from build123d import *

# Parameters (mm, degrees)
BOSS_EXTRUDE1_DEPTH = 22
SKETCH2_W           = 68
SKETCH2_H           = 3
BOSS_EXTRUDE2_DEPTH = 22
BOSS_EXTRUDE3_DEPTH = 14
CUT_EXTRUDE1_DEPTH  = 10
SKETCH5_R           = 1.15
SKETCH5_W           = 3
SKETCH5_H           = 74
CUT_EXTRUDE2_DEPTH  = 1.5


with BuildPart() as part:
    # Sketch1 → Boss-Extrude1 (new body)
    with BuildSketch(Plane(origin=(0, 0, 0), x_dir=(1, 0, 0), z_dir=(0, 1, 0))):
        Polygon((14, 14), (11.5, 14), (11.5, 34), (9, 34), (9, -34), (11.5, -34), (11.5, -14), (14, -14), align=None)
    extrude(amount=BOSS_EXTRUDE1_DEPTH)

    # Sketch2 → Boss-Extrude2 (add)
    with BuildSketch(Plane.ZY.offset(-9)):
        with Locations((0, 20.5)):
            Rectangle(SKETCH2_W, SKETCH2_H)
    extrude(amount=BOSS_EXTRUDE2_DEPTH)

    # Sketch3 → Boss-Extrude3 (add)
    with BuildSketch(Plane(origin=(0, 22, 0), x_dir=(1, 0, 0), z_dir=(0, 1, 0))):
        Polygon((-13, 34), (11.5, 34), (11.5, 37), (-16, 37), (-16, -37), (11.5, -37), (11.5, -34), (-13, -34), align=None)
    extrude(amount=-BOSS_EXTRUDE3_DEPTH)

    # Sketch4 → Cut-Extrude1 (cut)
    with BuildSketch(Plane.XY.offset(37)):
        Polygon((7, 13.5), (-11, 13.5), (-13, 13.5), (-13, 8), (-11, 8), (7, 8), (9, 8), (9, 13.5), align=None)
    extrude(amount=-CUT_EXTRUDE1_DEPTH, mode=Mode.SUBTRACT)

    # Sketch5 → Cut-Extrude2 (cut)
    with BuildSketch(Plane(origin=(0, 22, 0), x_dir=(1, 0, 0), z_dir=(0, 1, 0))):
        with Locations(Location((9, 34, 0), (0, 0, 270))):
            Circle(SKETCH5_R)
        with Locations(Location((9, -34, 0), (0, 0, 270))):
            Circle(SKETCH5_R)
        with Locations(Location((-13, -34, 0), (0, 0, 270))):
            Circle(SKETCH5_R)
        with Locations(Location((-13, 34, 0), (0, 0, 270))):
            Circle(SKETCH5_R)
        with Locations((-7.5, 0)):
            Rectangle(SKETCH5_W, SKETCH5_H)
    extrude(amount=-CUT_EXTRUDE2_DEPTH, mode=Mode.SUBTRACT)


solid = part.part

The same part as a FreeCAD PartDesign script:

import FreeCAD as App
import Part
import Sketcher

V = App.Vector
Q = App.Units.Quantity


def add_polygon(sketch, points):
    """Adds a closed chain of lines whose ends are joined by coincident constraints."""
    first, n = sketch.GeometryCount, len(points)
    for a, b in zip(points, points[1:] + points[:1]):
        sketch.addGeometry(Part.LineSegment(App.Vector(*a, 0), App.Vector(*b, 0)), False)
    for i in range(n):
        sketch.addConstraint(Sketcher.Constraint("Coincident", first + i, 2, first + (i + 1) % n, 1))

doc = App.newDocument("Part")
body = doc.addObject("PartDesign::Body", "Body")

sketch1 = body.newObject("Sketcher::SketchObject", "Sketch")
sketch1.AttachmentSupport = (doc.getObject("XZ_Plane"), [""])
sketch1.MapMode = "FlatFace"
add_polygon(sketch1, [(14, -14), (11.5, -14), (11.5, -34), (9, -34), (9, 34), (11.5, 34), (11.5, 14), (14, 14)])
sketch1.addConstraint([
    Sketcher.Constraint("Horizontal", 0),
    Sketcher.Constraint("Vertical", 1),
    Sketcher.Constraint("Horizontal", 2),
    Sketcher.Constraint("Vertical", 3),
    Sketcher.Constraint("Horizontal", 4),
    Sketcher.Constraint("Vertical", 5),
    Sketcher.Constraint("Horizontal", 6),
    Sketcher.Constraint("Vertical", 7),
    Sketcher.Constraint("Symmetric", 1, 2, 4, 2, -1),
    Sketcher.Constraint("Equal", 0, 2),
    Sketcher.Constraint("Equal", 1, 5),
    Sketcher.Constraint("DistanceY", 1, 2, 1, 1, Q("20 mm")),
    Sketcher.Constraint("DistanceY", 3, 1, 3, 2, Q("68 mm")),
    Sketcher.Constraint("DistanceX", 0, 2, 0, 1, Q("2.5 mm")),
    Sketcher.Constraint("DistanceX", -1, 1, 2, 2, Q("9 mm")),
])
pad1 = body.newObject("PartDesign::Pad", "Pad")
pad1.Profile = sketch1
pad1.Length = 22
pad1.Reversed = True

sketch2 = body.newObject("Sketcher::SketchObject", "Sketch001")
sketch2.AttachmentSupport = (doc.getObject("YZ_Plane"), [""])
sketch2.MapMode = "FlatFace"
sketch2.AttachmentOffset = App.Placement(V(0, 0, 9), App.Rotation())
add_polygon(sketch2, [(22, -34), (19, -34), (19, 34), (22, 34)])
sketch2.addConstraint([
    Sketcher.Constraint("Horizontal", 0),
    Sketcher.Constraint("Vertical", 1),
    Sketcher.Constraint("Horizontal", 2),
    Sketcher.Constraint("Vertical", 3),
    Sketcher.Constraint("DistanceX", 0, 2, 0, 1, Q("3 mm")),
    Sketcher.Constraint("DistanceY", 1, 1, 1, 2, Q("68 mm")),
    Sketcher.Constraint("DistanceX", -1, 1, 0, 2, Q("19 mm")),
    Sketcher.Constraint("DistanceY", 0, 2, -1, 1, Q("34 mm")),
])
pad2 = body.newObject("PartDesign::Pad", "Pad001")
pad2.Profile = sketch2
pad2.Length = 22
pad2.Reversed = True

sketch3 = body.newObject("Sketcher::SketchObject", "Sketch002")
sketch3.AttachmentSupport = (doc.getObject("XZ_Plane"), [""])
sketch3.MapMode = "FlatFace"
sketch3.AttachmentOffset = App.Placement(V(0, 0, -22), App.Rotation())
add_polygon(sketch3, [(-13, -34), (11.5, -34), (11.5, -37), (-16, -37), (-16, 37), (11.5, 37), (11.5, 34), (-13, 34)])
sketch3.addConstraint([
    Sketcher.Constraint("Horizontal", 0),
    Sketcher.Constraint("Vertical", 1),
    Sketcher.Constraint("Horizontal", 2),
    Sketcher.Constraint("Vertical", 3),
    Sketcher.Constraint("Horizontal", 4),
    Sketcher.Constraint("Vertical", 5),
    Sketcher.Constraint("Horizontal", 6),
    Sketcher.Constraint("Vertical", 7),
    Sketcher.Constraint("Symmetric", 1, 2, 4, 2, -1),
    Sketcher.Constraint("Equal", 1, 5),
    Sketcher.Constraint("DistanceY", 1, 2, 1, 1, Q("3 mm")),
    Sketcher.Constraint("DistanceY", 3, 1, 3, 2, Q("74 mm")),
    Sketcher.Constraint("DistanceX", 0, 1, 0, 2, Q("24.5 mm")),
    Sketcher.Constraint("DistanceX", 2, 2, 2, 1, Q("27.5 mm")),
    Sketcher.Constraint("DistanceX", 2, 2, -1, 1, Q("16 mm")),
])
pad3 = body.newObject("PartDesign::Pad", "Pad002")
pad3.Profile = sketch3
pad3.Length = 14

sketch4 = body.newObject("Sketcher::SketchObject", "Sketch003")
sketch4.AttachmentSupport = (doc.getObject("XY_Plane"), [""])
sketch4.MapMode = "FlatFace"
sketch4.AttachmentOffset = App.Placement(V(0, 0, 37), App.Rotation())
add_polygon(sketch4, [(-13, 13.5), (-13, 8), (9, 8), (9, 13.5)])
sketch4.addConstraint([
    Sketcher.Constraint("Vertical", 0),
    Sketcher.Constraint("Horizontal", 1),
    Sketcher.Constraint("Vertical", 2),
    Sketcher.Constraint("Horizontal", 3),
    Sketcher.Constraint("DistanceX", 1, 1, 1, 2, Q("22 mm")),
    Sketcher.Constraint("DistanceY", 0, 2, 0, 1, Q("5.5 mm")),
    Sketcher.Constraint("DistanceX", 0, 2, -1, 1, Q("13 mm")),
    Sketcher.Constraint("DistanceY", -1, 1, 0, 2, Q("8 mm")),
])
pocket1 = body.newObject("PartDesign::Pocket", "Pocket")
pocket1.Profile = sketch4
pocket1.Length = 10

sketch5 = body.newObject("Sketcher::SketchObject", "Sketch004")
sketch5.AttachmentSupport = (doc.getObject("XZ_Plane"), [""])
sketch5.MapMode = "FlatFace"
sketch5.AttachmentOffset = App.Placement(V(0, 0, -22), App.Rotation())
sketch5.addGeometry(Part.Circle(V(9, -34, 0), V(0, 0, 1), 1.15), False)
sketch5.addGeometry(Part.Circle(V(9, 34, 0), V(0, 0, 1), 1.15), False)
sketch5.addGeometry(Part.Circle(V(-13, 34, 0), V(0, 0, 1), 1.15), False)
sketch5.addGeometry(Part.Circle(V(-13, -34, 0), V(0, 0, 1), 1.15), False)
add_polygon(sketch5, [(-9, -37), (-9, 37), (-6, 37), (-6, -37)])
sketch5.addConstraint([
    Sketcher.Constraint("Vertical", 4),
    Sketcher.Constraint("Horizontal", 5),
    Sketcher.Constraint("Vertical", 6),
    Sketcher.Constraint("Horizontal", 7),
    Sketcher.Constraint("Equal", 0, 1),
    Sketcher.Constraint("Equal", 1, 2),
    Sketcher.Constraint("Equal", 2, 3),
    Sketcher.Constraint("Symmetric", 0, 3, 1, 3, -1),
    Sketcher.Constraint("Symmetric", 2, 3, 3, 3, -1),
    Sketcher.Constraint("Horizontal", 1, 3, 2, 3),
    Sketcher.Constraint("Diameter", 0, Q("2.3 mm")),
    Sketcher.Constraint("DistanceX", 5, 1, 5, 2, Q("3 mm")),
    Sketcher.Constraint("DistanceY", 4, 1, 4, 2, Q("74 mm")),
    Sketcher.Constraint("DistanceX", -1, 1, 0, 3, Q("9 mm")),
    Sketcher.Constraint("DistanceY", 0, 3, -1, 1, Q("34 mm")),
    Sketcher.Constraint("DistanceX", 2, 3, -1, 1, Q("13 mm")),
    Sketcher.Constraint("DistanceX", 4, 2, -1, 1, Q("9 mm")),
    Sketcher.Constraint("DistanceY", -1, 1, 4, 2, Q("37 mm")),
])
pocket2 = body.newObject("PartDesign::Pocket", "Pocket001")
pocket2.Profile = sketch5
pocket2.Length = 1.5
pocket2.Reversed = True

doc.recompute()
